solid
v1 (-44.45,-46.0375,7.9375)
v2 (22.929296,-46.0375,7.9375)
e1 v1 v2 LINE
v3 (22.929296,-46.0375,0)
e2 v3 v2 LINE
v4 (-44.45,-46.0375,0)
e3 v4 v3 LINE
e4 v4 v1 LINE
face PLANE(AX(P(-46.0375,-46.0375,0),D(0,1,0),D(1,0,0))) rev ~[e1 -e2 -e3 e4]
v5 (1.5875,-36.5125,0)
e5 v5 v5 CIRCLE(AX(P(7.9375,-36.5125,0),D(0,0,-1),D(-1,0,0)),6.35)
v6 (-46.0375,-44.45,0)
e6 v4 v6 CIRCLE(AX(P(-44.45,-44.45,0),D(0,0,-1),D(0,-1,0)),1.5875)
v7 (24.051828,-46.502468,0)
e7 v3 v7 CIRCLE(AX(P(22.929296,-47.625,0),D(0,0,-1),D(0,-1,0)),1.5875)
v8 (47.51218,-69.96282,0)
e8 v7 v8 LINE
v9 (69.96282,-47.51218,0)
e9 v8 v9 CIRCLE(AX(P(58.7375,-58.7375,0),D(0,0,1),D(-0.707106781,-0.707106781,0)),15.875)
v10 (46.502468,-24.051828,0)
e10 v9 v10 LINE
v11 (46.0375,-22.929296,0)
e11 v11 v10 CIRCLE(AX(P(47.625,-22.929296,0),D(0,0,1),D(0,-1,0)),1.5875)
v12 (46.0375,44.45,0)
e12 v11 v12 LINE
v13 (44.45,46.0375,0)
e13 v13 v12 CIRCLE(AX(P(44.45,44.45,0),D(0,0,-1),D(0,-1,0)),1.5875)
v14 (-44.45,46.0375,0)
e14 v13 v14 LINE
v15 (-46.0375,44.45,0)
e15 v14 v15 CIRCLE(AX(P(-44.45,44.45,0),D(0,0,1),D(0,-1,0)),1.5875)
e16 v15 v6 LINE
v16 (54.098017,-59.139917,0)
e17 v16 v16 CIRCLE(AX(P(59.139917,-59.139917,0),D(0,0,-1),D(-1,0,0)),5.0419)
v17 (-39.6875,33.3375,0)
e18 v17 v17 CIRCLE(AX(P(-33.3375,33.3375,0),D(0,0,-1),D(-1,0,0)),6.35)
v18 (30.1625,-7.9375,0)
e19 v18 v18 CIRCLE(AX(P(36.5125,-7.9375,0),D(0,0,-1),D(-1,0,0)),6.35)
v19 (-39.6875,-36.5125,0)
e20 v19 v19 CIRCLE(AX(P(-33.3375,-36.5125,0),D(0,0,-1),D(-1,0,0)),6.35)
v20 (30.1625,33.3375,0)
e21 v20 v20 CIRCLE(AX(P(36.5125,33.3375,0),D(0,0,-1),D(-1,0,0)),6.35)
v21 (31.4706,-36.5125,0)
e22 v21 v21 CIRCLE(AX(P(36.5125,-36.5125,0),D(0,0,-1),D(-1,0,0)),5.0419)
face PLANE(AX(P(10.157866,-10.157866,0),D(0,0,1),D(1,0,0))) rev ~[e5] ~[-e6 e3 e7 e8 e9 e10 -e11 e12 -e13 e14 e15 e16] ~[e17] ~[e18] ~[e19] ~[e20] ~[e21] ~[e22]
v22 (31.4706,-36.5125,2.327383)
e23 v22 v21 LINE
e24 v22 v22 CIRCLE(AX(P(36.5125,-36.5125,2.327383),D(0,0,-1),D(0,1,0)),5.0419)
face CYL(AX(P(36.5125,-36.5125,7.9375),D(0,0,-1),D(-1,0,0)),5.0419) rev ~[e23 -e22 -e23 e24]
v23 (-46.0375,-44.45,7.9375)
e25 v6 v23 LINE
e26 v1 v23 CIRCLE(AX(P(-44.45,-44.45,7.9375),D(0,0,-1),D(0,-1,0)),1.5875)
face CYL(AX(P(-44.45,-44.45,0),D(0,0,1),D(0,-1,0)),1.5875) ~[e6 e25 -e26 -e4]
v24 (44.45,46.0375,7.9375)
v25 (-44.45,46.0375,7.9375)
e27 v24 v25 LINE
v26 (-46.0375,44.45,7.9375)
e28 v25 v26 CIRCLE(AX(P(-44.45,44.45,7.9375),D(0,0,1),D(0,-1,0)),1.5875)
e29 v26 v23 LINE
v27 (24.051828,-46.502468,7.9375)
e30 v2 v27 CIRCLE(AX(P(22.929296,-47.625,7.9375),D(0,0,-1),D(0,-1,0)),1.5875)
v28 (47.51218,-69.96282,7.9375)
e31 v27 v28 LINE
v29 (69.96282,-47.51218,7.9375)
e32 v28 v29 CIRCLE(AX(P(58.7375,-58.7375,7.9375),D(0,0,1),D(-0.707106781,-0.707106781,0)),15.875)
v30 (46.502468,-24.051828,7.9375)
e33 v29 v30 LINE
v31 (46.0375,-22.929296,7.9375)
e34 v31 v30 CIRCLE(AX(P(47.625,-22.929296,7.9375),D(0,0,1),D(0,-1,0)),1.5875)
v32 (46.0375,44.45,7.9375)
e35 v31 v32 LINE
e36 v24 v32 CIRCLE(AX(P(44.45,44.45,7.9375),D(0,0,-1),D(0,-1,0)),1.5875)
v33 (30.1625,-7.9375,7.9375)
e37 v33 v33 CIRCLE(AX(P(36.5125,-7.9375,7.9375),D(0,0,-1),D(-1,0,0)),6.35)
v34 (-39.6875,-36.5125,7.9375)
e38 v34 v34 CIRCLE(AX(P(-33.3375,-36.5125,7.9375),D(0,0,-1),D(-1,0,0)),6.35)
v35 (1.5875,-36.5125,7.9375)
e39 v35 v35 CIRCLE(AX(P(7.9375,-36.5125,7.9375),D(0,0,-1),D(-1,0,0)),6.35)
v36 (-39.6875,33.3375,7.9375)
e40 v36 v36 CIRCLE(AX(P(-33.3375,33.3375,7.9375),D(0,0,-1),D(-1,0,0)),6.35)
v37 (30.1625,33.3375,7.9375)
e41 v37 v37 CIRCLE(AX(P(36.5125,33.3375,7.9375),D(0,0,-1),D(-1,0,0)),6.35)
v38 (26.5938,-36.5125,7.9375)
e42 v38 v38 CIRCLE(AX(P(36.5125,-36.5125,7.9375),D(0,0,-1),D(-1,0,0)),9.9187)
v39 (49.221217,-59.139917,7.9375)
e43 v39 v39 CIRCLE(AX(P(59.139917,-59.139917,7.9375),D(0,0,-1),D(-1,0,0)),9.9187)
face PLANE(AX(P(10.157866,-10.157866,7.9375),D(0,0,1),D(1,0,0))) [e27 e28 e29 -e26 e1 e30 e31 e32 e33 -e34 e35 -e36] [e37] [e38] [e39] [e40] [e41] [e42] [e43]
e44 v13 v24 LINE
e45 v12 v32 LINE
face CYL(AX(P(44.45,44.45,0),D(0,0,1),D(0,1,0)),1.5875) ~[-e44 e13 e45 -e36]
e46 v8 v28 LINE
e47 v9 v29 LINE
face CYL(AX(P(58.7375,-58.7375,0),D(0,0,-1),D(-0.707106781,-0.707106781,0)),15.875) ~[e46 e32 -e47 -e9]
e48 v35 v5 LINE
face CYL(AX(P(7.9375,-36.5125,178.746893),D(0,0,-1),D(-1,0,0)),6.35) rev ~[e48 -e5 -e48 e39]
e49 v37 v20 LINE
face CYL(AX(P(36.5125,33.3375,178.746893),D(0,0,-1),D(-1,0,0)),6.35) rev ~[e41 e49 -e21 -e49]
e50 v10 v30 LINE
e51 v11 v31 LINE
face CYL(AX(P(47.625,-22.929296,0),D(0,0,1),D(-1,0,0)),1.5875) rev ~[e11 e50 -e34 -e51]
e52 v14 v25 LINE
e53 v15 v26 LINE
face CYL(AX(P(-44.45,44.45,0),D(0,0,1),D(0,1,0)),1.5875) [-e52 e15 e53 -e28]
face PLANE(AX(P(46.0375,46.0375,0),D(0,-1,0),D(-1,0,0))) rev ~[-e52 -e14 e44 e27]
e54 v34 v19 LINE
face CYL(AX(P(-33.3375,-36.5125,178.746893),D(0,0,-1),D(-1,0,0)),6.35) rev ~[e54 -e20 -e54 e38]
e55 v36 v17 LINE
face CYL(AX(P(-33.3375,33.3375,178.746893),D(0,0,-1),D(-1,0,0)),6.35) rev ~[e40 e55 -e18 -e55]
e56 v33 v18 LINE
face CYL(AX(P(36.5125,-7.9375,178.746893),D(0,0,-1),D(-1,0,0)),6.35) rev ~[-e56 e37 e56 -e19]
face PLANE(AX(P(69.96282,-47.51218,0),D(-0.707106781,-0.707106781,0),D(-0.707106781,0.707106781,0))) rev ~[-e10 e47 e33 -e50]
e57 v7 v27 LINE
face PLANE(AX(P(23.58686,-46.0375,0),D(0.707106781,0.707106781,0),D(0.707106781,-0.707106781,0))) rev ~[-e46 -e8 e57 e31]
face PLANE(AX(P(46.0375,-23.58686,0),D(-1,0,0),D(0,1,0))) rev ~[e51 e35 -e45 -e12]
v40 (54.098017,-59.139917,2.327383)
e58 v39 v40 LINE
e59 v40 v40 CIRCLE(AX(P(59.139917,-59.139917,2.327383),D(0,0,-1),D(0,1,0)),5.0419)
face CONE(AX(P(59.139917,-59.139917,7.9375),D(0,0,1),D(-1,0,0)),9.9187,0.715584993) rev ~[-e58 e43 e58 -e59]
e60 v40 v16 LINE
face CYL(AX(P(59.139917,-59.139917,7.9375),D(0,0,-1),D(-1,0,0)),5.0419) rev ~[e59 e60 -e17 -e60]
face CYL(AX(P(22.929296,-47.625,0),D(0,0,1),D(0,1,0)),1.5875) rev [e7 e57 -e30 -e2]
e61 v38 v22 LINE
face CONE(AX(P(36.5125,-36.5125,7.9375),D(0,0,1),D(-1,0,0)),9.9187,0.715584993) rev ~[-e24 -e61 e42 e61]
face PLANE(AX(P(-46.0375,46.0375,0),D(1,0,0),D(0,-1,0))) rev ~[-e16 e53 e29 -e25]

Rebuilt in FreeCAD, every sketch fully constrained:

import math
import FreeCAD as App
import Part
import Sketcher

V = App.Vector
Q = App.Units.Quantity


def edges_at(feature, points):
    """Names of the edges that pass closest to the given points."""
    edges = feature.Shape.Edges
    near = lambda p: min(range(len(edges)), key=lambda i: edges[i].distToShape(Part.Vertex(*p))[0])
    return sorted({f"Edge{near(p) + 1}" for p in points})

doc = App.newDocument("Part")
body = doc.addObject("PartDesign::Body", "Body")

# Sketch on XY plane
sketch1 = body.newObject("Sketcher::SketchObject", "Sketch")
sketch1.AttachmentSupport = (doc.getObject("XY_Plane"), [""])
sketch1.MapMode = "FlatFace"
sketch1.addGeometry(Part.LineSegment(V(-46, -46, 0), V(24, -46, 0)), False)
sketch1.addGeometry(Part.LineSegment(V(24, -46, 0), V(48, -70, 0)), False)
sketch1.addGeometry(Part.ArcOfCircle(Part.Circle(V(59, -59, 0), V(0, 0, 1), 16), math.radians(-135), math.radians(45)), False)
sketch1.addGeometry(Part.LineSegment(V(70, -48, 0), V(46, -24, 0)), False)
sketch1.addGeometry(Part.LineSegment(V(46, -24, 0), V(46, 46, 0)), False)
sketch1.addGeometry(Part.LineSegment(V(46, 46, 0), V(-46, 46, 0)), False)
sketch1.addGeometry(Part.LineSegment(V(-46, 46, 0), V(-46, -46, 0)), False)
sketch1.addConstraint(Sketcher.Constraint("Coincident", 0, 2, 1, 1))
sketch1.addConstraint(Sketcher.Constraint("Tangent", 1, 2, 2, 1))
sketch1.addConstraint(Sketcher.Constraint("Tangent", 2, 2, 3, 1))
sketch1.addConstraint(Sketcher.Constraint("Coincident", 3, 2, 4, 1))
sketch1.addConstraint(Sketcher.Constraint("Coincident", 4, 2, 5, 1))
sketch1.addConstraint(Sketcher.Constraint("Coincident", 5, 2, 6, 1))
sketch1.addConstraint(Sketcher.Constraint("Coincident", 6, 2, 0, 1))
sketch1.addConstraint(Sketcher.Constraint("Horizontal", 0))
sketch1.addConstraint(Sketcher.Constraint("Vertical", 4))
sketch1.addConstraint(Sketcher.Constraint("Horizontal", 5))
sketch1.addConstraint(Sketcher.Constraint("Vertical", 6))
sketch1.addConstraint(Sketcher.Constraint("Symmetric", 4, 2, 6, 2, -1, 1))
sketch1.addConstraint(Sketcher.Constraint("Parallel", 1, 3))
sketch1.addConstraint(Sketcher.Constraint("Equal", 0, 4))
sketch1.addConstraint(Sketcher.Constraint("Equal", 5, 6))
sketch1.addConstraint(Sketcher.Constraint("Equal", 1, 3))
sketch1.addConstraint(Sketcher.Constraint("Radius", 2, Q("0.625 in")))
sketch1.addConstraint(Sketcher.Constraint("DistanceY", 2, 3, 0, 2, Q("0.5 in")))
sketch1.addConstraint(Sketcher.Constraint("DistanceX", 5, 2, 5, 1, Q("3.625 in")))
pad1 = body.newObject("PartDesign::Pad", "Pad")
pad1.Profile = sketch1
pad1.Length = Q("0.3125 in")

# Sketch on XY plane
sketch2 = body.newObject("Sketcher::SketchObject", "Sketch001")
sketch2.AttachmentSupport = (doc.getObject("XY_Plane"), [""])
sketch2.MapMode = "FlatFace"
sketch2.AttachmentOffset = App.Placement(V(0, 0, 0.3125 * 25.4), App.Rotation())
sketch2.addGeometry(Part.Circle(V(-33, 33, 0), V(0, 0, 1), 6), False)
sketch2.addGeometry(Part.Circle(V(-33, -37, 0), V(0, 0, 1), 6), False)
sketch2.addGeometry(Part.Circle(V(8, -37, 0), V(0, 0, 1), 6), False)
sketch2.addGeometry(Part.Circle(V(37, -8, 0), V(0, 0, 1), 6), False)
sketch2.addGeometry(Part.Circle(V(37, 33, 0), V(0, 0, 1), 6), False)
sketch2.addConstraint(Sketcher.Constraint("Equal", 0, 1))
sketch2.addConstraint(Sketcher.Constraint("Equal", 1, 2))
sketch2.addConstraint(Sketcher.Constraint("Equal", 2, 3))
sketch2.addConstraint(Sketcher.Constraint("Equal", 3, 4))
sketch2.addConstraint(Sketcher.Constraint("Horizontal", 1, 3, 2, 3))
sketch2.addConstraint(Sketcher.Constraint("Horizontal", 0, 3, 4, 3))
sketch2.addConstraint(Sketcher.Constraint("Vertical", 0, 3, 1, 3))
sketch2.addConstraint(Sketcher.Constraint("Vertical", 3, 3, 4, 3))
sketch2.addConstraint(Sketcher.Constraint("Diameter", 0, Q("0.5 in")))
sketch2.addConstraint(Sketcher.Constraint("DistanceY", 1, 3, 0, 3, Q("2.75 in")))
sketch2.addConstraint(Sketcher.Constraint("DistanceX", 1, 3, 3, 3, Q("2.75 in")))
sketch2.addConstraint(Sketcher.Constraint("DistanceX", 0, 3, -1, 1, Q("1.3125 in")))
sketch2.addConstraint(Sketcher.Constraint("DistanceY", -1, 1, 0, 3, Q("1.3125 in")))
sketch2.addConstraint(Sketcher.Constraint("DistanceX", -1, 1, 2, 3, Q("0.3125 in")))
sketch2.addConstraint(Sketcher.Constraint("DistanceY", 3, 3, -1, 1, Q("0.3125 in")))
doc.recompute()
hole = body.newObject("PartDesign::Hole", "Hole")
hole.Profile = sketch2
hole.ThreadType = "None"
hole.Diameter = Q("0.5 in")
hole.DepthType = "ThroughAll"

# Sketch on XY plane
sketch3 = body.newObject("Sketcher::SketchObject", "Sketch002")
sketch3.AttachmentSupport = (doc.getObject("XY_Plane"), [""])
sketch3.MapMode = "FlatFace"
sketch3.AttachmentOffset = App.Placement(V(0, 0, 0.3125 * 25.4), App.Rotation())
sketch3.addGeometry(Part.Circle(V(37, -37, 0), V(0, 0, 1), 5), False)
sketch3.addGeometry(Part.Circle(V(59, -59, 0), V(0, 0, 1), 5), False)
sketch3.addConstraint(Sketcher.Constraint("Equal", 0, 1))
sketch3.addConstraint(Sketcher.Constraint("Diameter", 0, Q("0.397 in")))
sketch3.addConstraint(Sketcher.Constraint("DistanceX", -1, 1, 0, 3, Q("1.4375 in")))
sketch3.addConstraint(Sketcher.Constraint("DistanceY", 0, 3, -1, 1, Q("1.4375 in")))
sketch3.addConstraint(Sketcher.Constraint("DistanceX", -1, 1, 1, 3, 59.139917))
sketch3.addConstraint(Sketcher.Constraint("DistanceY", 1, 3, -1, 1, 59.139917))
doc.recompute()
hole2 = body.newObject("PartDesign::Hole", "Hole001")
hole2.Profile = sketch3
hole2.ThreadType = "None"
hole2.Diameter = Q("0.397 in")
hole2.DepthType = "ThroughAll"
hole2.HoleCutType = "Countersink"
hole2.HoleCutDiameter = Q("0.781 in")
hole2.HoleCutCountersinkAngle = 82
doc.recompute()

fillet = body.newObject("PartDesign::Fillet", "Fillet")
fillet.Base = (hole2, edges_at(hole2, [
    (-46.038, -46.038, 3.969),
    (-46.038, 46.038, 3.969),
    (46.038, 46.038, 3.969),
    (46.038, -23.587, 3.969),
    (23.587, -46.038, 3.969),
]))
fillet.Radius = Q("0.0625 in")

doc.recompute()
